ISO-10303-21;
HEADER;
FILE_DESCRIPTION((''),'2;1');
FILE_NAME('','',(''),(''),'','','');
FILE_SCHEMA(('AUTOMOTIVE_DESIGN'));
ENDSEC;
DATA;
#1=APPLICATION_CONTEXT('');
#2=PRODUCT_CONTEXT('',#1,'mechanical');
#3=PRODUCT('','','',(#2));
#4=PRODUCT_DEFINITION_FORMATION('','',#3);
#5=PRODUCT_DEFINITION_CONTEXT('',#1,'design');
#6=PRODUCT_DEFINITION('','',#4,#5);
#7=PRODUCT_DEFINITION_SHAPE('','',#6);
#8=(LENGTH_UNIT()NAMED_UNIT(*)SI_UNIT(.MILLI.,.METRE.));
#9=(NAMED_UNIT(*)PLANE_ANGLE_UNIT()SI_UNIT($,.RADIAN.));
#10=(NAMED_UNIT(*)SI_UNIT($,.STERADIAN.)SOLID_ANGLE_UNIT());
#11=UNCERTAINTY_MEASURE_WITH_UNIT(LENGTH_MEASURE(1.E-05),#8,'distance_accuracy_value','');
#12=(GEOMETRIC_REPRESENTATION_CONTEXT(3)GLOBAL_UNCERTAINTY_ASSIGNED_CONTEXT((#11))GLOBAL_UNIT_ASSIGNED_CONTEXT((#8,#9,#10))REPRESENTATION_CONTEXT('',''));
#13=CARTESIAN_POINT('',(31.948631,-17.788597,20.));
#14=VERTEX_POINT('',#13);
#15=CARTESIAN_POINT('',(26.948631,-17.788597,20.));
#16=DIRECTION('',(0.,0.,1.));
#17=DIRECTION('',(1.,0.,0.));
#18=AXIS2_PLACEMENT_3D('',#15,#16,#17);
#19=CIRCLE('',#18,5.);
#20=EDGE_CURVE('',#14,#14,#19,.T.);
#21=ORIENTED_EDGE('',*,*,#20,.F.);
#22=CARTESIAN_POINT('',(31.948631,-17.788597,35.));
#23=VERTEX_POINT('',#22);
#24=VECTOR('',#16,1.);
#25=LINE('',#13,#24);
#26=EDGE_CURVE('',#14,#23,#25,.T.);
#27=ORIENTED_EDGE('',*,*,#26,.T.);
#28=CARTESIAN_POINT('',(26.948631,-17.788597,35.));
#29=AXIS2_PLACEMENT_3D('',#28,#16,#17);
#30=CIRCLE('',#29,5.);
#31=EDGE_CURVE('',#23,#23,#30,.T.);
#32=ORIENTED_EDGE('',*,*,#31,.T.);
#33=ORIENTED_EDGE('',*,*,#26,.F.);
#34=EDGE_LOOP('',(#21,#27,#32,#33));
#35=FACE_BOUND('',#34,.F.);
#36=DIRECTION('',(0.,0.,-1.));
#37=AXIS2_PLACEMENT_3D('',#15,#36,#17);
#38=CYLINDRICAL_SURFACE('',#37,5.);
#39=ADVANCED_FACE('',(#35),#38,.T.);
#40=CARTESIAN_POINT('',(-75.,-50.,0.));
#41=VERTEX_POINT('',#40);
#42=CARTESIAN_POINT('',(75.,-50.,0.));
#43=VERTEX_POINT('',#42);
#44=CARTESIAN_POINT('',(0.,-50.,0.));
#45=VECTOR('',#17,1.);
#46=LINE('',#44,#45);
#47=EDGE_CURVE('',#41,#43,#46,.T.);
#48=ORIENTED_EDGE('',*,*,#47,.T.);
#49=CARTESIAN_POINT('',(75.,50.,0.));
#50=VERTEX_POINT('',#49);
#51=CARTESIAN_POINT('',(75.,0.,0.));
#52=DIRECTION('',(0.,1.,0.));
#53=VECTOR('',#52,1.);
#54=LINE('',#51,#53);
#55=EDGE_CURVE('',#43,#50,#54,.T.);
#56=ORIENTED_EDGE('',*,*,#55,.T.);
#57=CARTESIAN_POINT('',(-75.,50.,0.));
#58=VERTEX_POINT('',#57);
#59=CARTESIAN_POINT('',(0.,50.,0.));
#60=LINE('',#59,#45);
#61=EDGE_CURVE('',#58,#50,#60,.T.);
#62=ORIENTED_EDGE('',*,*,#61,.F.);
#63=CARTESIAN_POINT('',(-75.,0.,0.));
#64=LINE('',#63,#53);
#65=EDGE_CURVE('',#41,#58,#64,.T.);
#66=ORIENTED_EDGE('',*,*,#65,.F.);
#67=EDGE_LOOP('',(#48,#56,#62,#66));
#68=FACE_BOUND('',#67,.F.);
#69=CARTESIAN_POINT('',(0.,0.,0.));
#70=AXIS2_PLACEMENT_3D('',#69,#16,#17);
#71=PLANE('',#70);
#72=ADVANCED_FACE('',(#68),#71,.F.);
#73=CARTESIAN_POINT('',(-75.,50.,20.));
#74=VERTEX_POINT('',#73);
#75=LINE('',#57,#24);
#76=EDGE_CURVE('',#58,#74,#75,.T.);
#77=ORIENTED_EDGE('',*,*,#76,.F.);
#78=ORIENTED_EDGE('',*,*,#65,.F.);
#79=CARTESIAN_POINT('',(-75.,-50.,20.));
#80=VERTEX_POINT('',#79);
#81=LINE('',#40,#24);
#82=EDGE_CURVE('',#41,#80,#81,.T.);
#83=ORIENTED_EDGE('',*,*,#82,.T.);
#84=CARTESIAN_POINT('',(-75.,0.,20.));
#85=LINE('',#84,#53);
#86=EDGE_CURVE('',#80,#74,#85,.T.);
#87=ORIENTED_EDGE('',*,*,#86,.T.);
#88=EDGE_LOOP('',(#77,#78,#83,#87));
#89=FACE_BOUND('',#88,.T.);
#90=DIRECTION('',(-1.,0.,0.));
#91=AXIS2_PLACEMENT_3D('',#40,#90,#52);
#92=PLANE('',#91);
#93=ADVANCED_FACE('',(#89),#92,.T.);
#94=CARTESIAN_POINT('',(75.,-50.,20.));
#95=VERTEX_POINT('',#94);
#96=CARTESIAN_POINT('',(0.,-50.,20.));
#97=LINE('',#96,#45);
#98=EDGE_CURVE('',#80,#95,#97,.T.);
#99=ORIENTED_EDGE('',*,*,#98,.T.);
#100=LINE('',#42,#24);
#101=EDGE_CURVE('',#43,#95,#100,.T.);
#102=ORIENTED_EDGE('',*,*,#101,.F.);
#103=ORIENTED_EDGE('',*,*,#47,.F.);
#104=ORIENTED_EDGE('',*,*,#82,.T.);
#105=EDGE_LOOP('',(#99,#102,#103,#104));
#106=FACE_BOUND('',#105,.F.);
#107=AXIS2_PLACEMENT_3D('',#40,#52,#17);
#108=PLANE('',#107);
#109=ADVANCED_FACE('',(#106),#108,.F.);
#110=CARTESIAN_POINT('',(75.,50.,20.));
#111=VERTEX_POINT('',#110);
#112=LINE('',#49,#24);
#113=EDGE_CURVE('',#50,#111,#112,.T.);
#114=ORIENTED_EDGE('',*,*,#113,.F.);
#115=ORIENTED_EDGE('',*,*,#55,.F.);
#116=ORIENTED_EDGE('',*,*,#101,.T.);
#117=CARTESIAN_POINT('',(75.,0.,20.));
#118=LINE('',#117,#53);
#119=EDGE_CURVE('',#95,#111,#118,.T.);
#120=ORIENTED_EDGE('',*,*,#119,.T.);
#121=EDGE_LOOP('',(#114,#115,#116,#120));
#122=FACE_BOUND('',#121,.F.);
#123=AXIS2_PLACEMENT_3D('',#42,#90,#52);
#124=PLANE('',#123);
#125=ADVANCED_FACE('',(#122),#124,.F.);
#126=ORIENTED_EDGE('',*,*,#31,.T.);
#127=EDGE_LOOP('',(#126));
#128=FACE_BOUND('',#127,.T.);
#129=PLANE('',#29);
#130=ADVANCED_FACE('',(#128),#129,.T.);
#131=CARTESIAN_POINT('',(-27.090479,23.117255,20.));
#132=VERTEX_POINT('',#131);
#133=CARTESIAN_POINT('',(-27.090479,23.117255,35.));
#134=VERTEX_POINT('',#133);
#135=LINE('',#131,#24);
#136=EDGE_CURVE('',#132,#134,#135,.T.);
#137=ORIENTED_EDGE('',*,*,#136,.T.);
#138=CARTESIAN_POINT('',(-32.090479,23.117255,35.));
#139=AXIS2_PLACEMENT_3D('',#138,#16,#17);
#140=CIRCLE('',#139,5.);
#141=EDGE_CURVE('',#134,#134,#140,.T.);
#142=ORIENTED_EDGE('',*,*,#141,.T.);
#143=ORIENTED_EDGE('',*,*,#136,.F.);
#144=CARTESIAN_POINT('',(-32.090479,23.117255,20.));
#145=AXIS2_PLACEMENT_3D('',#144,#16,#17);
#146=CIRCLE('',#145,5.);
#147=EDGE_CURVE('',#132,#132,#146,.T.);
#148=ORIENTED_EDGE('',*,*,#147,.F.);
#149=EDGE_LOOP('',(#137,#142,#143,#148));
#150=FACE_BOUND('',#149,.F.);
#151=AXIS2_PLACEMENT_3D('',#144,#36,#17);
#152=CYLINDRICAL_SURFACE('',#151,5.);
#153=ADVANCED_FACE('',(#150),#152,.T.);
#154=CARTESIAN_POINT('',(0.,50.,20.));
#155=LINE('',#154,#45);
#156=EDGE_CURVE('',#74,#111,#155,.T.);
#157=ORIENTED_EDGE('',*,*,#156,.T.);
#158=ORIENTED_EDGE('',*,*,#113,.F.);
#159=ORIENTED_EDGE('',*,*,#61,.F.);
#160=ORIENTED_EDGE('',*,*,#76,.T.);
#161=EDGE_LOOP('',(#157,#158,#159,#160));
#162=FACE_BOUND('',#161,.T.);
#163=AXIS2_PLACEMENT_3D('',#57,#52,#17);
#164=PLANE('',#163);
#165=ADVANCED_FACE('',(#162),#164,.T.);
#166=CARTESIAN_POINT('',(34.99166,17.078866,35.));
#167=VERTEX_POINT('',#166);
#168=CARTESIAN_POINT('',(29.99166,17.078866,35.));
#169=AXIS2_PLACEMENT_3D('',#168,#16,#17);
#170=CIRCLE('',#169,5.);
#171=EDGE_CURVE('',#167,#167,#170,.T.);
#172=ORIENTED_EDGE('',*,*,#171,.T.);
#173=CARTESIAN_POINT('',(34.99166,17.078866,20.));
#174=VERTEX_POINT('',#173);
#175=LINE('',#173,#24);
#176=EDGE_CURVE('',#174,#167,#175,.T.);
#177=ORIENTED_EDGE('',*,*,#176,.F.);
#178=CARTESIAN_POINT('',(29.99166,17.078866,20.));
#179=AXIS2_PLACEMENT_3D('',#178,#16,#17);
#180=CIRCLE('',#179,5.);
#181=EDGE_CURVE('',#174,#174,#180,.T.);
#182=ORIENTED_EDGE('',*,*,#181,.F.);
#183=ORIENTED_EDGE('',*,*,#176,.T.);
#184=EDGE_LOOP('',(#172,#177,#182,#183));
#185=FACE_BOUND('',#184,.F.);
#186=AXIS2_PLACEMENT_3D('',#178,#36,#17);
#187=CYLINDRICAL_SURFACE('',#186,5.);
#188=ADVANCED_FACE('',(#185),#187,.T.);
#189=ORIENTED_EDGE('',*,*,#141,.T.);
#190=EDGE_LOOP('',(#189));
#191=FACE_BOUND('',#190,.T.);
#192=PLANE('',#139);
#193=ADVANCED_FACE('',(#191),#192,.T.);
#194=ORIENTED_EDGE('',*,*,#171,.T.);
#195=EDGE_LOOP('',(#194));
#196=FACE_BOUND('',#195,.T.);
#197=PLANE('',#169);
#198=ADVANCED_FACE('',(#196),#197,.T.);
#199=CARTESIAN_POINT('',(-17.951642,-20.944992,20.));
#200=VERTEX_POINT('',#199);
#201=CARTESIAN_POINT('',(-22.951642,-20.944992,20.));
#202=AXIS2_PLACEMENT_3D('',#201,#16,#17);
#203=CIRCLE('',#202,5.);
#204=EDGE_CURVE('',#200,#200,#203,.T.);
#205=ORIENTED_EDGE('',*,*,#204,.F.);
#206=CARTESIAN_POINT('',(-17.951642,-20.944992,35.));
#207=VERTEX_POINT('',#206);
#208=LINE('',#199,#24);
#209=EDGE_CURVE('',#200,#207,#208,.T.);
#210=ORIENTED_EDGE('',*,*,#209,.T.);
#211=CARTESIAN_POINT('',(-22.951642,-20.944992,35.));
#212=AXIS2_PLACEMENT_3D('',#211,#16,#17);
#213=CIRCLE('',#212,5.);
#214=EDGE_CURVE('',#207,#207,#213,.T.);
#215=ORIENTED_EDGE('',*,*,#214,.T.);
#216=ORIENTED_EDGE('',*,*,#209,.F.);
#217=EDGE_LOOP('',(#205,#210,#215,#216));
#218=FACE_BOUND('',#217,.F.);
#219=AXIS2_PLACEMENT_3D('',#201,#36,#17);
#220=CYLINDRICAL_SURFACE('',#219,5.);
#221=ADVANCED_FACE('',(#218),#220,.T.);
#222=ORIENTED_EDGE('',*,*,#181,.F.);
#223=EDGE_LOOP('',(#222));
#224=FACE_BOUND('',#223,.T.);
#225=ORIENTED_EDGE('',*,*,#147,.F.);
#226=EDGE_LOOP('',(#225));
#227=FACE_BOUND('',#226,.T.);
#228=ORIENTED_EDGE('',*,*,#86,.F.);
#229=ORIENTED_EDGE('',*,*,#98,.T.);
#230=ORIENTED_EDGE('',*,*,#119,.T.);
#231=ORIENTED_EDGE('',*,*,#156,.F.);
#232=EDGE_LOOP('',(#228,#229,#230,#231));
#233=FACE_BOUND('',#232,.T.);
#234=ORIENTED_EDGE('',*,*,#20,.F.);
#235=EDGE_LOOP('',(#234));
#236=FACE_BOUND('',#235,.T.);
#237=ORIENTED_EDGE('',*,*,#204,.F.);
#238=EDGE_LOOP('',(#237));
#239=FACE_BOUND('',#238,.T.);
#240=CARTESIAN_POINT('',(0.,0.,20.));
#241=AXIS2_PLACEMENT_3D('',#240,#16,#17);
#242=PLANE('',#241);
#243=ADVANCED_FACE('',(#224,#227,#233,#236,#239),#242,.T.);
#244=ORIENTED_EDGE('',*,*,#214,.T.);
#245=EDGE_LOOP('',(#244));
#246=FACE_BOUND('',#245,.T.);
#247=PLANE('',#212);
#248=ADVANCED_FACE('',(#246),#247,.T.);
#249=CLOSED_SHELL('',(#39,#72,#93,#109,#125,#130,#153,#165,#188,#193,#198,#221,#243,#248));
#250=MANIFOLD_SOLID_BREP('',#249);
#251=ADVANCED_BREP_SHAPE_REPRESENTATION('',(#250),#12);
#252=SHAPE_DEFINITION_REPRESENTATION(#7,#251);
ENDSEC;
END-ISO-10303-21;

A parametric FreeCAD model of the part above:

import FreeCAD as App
import Part
import Sketcher

doc = App.newDocument("Part")
params = doc.addObject("Spreadsheet::Sheet", "Params")
for row, (alias, value) in enumerate([
    ("sketch1_width", "150 mm"),
    ("sketch1_height", "100 mm"),
    ("pad1_length", "20 mm"),
    ("sketch2_diameter", "10 mm"),
    ("pad2_length", "15 mm"),
], start=1):
    params.set(f"A{row}", alias)
    params.set(f"B{row}", "=" + value)
    params.setAlias(f"B{row}", alias)

body = doc.addObject("PartDesign::Body", "Body")

sketch1 = body.newObject("Sketcher::SketchObject", "Sketch")
sketch1.AttachmentSupport = (doc.getObject("XY_Plane"), [""])
sketch1.MapMode = "FlatFace"
sketch1.addGeometry(Part.LineSegment(App.Vector(-75, 50, 0), App.Vector(-75, -50, 0)), False)
sketch1.addGeometry(Part.LineSegment(App.Vector(-75, -50, 0), App.Vector(75, -50, 0)), False)
sketch1.addGeometry(Part.LineSegment(App.Vector(75, -50, 0), App.Vector(75, 50, 0)), False)
sketch1.addGeometry(Part.LineSegment(App.Vector(75, 50, 0), App.Vector(-75, 50, 0)), False)
sketch1.addConstraint(Sketcher.Constraint("Coincident", 0, 2, 1, 1))
sketch1.addConstraint(Sketcher.Constraint("Coincident", 1, 2, 2, 1))
sketch1.addConstraint(Sketcher.Constraint("Coincident", 2, 2, 3, 1))
sketch1.addConstraint(Sketcher.Constraint("Coincident", 3, 2, 0, 1))
sketch1.addConstraint(Sketcher.Constraint("Vertical", 0))
sketch1.addConstraint(Sketcher.Constraint("Horizontal", 1))
sketch1.addConstraint(Sketcher.Constraint("Vertical", 2))
sketch1.addConstraint(Sketcher.Constraint("Horizontal", 3))
sketch1.addConstraint(Sketcher.Constraint("Symmetric", 0, 2, 2, 2, -1, 1))
sketch1.addConstraint(Sketcher.Constraint("DistanceX", 1, 1, 1, 2, 150.0))
sketch1.addConstraint(Sketcher.Constraint("DistanceY", 0, 2, 0, 1, 100.0))
sketch1.setExpression("Constraints[9]", "Params.sketch1_width")
sketch1.setExpression("Constraints[10]", "Params.sketch1_height")
pad1 = body.newObject("PartDesign::Pad", "Pad")
pad1.Profile = sketch1
pad1.setExpression("Length", "Params.pad1_length")

sketch2 = body.newObject("Sketcher::SketchObject", "Sketch001")
sketch2.AttachmentSupport = (doc.getObject("XY_Plane"), [""])
sketch2.MapMode = "FlatFace"
sketch2.AttachmentOffset = App.Placement(App.Vector(0, 0, 20), App.Rotation())
sketch2.addGeometry(Part.Circle(App.Vector(27, -18, 0), App.Vector(0, 0, 1), 5), False)
sketch2.addGeometry(Part.Circle(App.Vector(30, 17, 0), App.Vector(0, 0, 1), 5), False)
sketch2.addGeometry(Part.Circle(App.Vector(-32, 23, 0), App.Vector(0, 0, 1), 5), False)
sketch2.addGeometry(Part.Circle(App.Vector(-23, -21, 0), App.Vector(0, 0, 1), 5), False)
sketch2.addConstraint(Sketcher.Constraint("Equal", 0, 1))
sketch2.addConstraint(Sketcher.Constraint("Equal", 1, 2))
sketch2.addConstraint(Sketcher.Constraint("Equal", 2, 3))
sketch2.addConstraint(Sketcher.Constraint("Diameter", 0, 10.0))
sketch2.addConstraint(Sketcher.Constraint("DistanceX", -1, 1, 0, 3, 26.948631))
sketch2.addConstraint(Sketcher.Constraint("DistanceX", -1, 1, 1, 3, 29.99166))
sketch2.addConstraint(Sketcher.Constraint("DistanceX", 2, 3, -1, 1, 32.090479))
sketch2.addConstraint(Sketcher.Constraint("DistanceX", 3, 3, -1, 1, 22.951642))
sketch2.addConstraint(Sketcher.Constraint("DistanceY", 3, 3, -1, 1, 20.944992))
sketch2.addConstraint(Sketcher.Constraint("DistanceY", 1, 3, 2, 3, 6.038389))
sketch2.addConstraint(Sketcher.Constraint("DistanceY", 0, 3, 2, 3, 40.905852))
sketch2.addConstraint(Sketcher.Constraint("DistanceY", 3, 3, 1, 3, 38.023858))
sketch2.setExpression("Constraints[3]", "Params.sketch2_diameter")
pad2 = body.newObject("PartDesign::Pad", "Pad001")
pad2.Profile = sketch2
pad2.setExpression("Length", "Params.pad2_length")

doc.recompute()
